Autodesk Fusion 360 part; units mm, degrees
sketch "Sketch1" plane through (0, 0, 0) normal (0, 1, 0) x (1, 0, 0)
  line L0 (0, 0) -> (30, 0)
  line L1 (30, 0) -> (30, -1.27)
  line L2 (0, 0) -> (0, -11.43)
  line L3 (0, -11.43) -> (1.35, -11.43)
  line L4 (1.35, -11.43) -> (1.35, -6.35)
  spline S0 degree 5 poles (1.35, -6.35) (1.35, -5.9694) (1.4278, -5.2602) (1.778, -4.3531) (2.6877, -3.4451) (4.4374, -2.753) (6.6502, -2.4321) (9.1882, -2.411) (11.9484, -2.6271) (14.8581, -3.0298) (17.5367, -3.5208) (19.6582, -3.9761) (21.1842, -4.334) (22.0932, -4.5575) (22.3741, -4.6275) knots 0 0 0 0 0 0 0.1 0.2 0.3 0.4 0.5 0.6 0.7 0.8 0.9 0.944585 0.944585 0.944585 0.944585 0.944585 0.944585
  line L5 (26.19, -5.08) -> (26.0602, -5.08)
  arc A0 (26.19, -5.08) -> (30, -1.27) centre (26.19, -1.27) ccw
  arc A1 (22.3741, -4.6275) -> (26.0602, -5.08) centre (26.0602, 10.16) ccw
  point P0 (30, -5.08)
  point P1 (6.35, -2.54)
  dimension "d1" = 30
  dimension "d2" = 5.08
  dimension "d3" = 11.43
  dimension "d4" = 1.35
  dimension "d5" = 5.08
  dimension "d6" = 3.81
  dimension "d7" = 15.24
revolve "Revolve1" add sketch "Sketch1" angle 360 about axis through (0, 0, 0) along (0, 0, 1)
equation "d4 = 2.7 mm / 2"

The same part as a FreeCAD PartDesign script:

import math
import FreeCAD as App
import Part
import Sketcher
from FreeCAD import Vector
Q = App.Units.Quantity

doc = App.newDocument("Part")
body = doc.addObject("PartDesign::Body", "Body")

# Sketch on XZ plane
sketch1 = body.newObject("Sketcher::SketchObject", "Sketch")
sketch1.AttachmentSupport = (doc.getObject("XZ_Plane"), [""])
sketch1.MapMode = "FlatFace"
sketch1.addGeometry(Part.LineSegment(Vector(30, 0, 0), Vector(0, 0, 0)), False)
sketch1.addGeometry(Part.LineSegment(Vector(0, 0, 0), Vector(0, 11.43, 0)), False)
sketch1.addGeometry(Part.LineSegment(Vector(0, 11.43, 0), Vector(1.35, 11.43, 0)), False)
sketch1.addGeometry(Part.LineSegment(Vector(1.35, 11.43, 0), Vector(1.35, 6.35, 0)), False)
sketch1.addGeometry(Part.BSplineCurve([Vector(1.35, 6.35, 0), Vector(1.35, 5.9694, 0), Vector(1.4278, 5.2602, 0), Vector(1.778, 4.3531, 0), Vector(2.6877, 3.4451, 0), Vector(4.4374, 2.753, 0), Vector(6.6502, 2.4321, 0), Vector(9.1882, 2.411, 0), Vector(11.9484, 2.6271, 0), Vector(14.8581, 3.0298, 0), Vector(17.5367, 3.5208, 0), Vector(19.6582, 3.9761, 0), Vector(21.1842, 4.334, 0), Vector(22.0932, 4.5575, 0), Vector(22.3741, 4.6275, 0)], [6, 1, 1, 1, 1, 1, 1, 1, 1, 1, 6], [0, 0.1, 0.2, 0.3, 0.4, 0.5, 0.6, 0.7, 0.8, 0.9, 0.944585], False, 5, [1, 1, 1, 1, 1, 1, 1, 1, 1, 1, 1, 1, 1, 1, 1], False), False)
sketch1.addGeometry(Part.ArcOfCircle(Part.Circle(Vector(26.0602, -10.16, 0), Vector(0, 0, 1), 15.239996), math.radians(90), math.radians(103.996944)), False)
sketch1.addGeometry(Part.LineSegment(Vector(26.0602, 5.08, 0), Vector(26.19, 5.08, 0)), False)
sketch1.addGeometry(Part.ArcOfCircle(Part.Circle(Vector(26.19, 1.27, 0), Vector(0, 0, 1), 3.81), math.radians(0), math.radians(90)), False)
sketch1.addGeometry(Part.LineSegment(Vector(30, 1.27, 0), Vector(30, 0, 0)), False)
sketch1.addConstraint(Sketcher.Constraint("Block", 4))
sketch1.addConstraint(Sketcher.Constraint("Coincident", 0, 2, 1, 1))
sketch1.addConstraint(Sketcher.Constraint("Coincident", 1, 2, 2, 1))
sketch1.addConstraint(Sketcher.Constraint("Coincident", 2, 2, 3, 1))
sketch1.addConstraint(Sketcher.Constraint("Coincident", 3, 2, 4, 1))
sketch1.addConstraint(Sketcher.Constraint("Coincident", 4, 2, 5, 2))
sketch1.addConstraint(Sketcher.Constraint("Tangent", 5, 1, 6, 1))
sketch1.addConstraint(Sketcher.Constraint("Tangent", 6, 2, 7, 2))
sketch1.addConstraint(Sketcher.Constraint("Tangent", 7, 1, 8, 1))
sketch1.addConstraint(Sketcher.Constraint("Coincident", 8, 2, 0, 1))
sketch1.addConstraint(Sketcher.Constraint("Horizontal", 0))
sketch1.addConstraint(Sketcher.Constraint("Vertical", 1))
sketch1.addConstraint(Sketcher.Constraint("Horizontal", 2))
sketch1.addConstraint(Sketcher.Constraint("Vertical", 3))
sketch1.addConstraint(Sketcher.Constraint("Horizontal", 6))
sketch1.addConstraint(Sketcher.Constraint("Vertical", 8))
sketch1.addConstraint(Sketcher.Constraint("Coincident", 0, 2, -1, 1))
sketch1.addConstraint(Sketcher.Constraint("Radius", 5, Q("0.6 in")))
sketch1.addConstraint(Sketcher.Constraint("Radius", 7, Q("0.15 in")))
sketch1.addConstraint(Sketcher.Constraint("DistanceY", 3, 2, 3, 1, Q("0.2 in")))
sketch1.addConstraint(Sketcher.Constraint("DistanceY", -1, 1, 5, 1, Q("0.2 in")))
sketch1.addConstraint(Sketcher.Constraint("DistanceX", 0, 2, 0, 1, Q("1.1811 in")))
revolution = body.newObject("PartDesign::Revolution", "Revolution")
revolution.Profile = sketch1
revolution.ReferenceAxis = (sketch1, ["V_Axis"])
revolution.Angle = 360

doc.recompute()
